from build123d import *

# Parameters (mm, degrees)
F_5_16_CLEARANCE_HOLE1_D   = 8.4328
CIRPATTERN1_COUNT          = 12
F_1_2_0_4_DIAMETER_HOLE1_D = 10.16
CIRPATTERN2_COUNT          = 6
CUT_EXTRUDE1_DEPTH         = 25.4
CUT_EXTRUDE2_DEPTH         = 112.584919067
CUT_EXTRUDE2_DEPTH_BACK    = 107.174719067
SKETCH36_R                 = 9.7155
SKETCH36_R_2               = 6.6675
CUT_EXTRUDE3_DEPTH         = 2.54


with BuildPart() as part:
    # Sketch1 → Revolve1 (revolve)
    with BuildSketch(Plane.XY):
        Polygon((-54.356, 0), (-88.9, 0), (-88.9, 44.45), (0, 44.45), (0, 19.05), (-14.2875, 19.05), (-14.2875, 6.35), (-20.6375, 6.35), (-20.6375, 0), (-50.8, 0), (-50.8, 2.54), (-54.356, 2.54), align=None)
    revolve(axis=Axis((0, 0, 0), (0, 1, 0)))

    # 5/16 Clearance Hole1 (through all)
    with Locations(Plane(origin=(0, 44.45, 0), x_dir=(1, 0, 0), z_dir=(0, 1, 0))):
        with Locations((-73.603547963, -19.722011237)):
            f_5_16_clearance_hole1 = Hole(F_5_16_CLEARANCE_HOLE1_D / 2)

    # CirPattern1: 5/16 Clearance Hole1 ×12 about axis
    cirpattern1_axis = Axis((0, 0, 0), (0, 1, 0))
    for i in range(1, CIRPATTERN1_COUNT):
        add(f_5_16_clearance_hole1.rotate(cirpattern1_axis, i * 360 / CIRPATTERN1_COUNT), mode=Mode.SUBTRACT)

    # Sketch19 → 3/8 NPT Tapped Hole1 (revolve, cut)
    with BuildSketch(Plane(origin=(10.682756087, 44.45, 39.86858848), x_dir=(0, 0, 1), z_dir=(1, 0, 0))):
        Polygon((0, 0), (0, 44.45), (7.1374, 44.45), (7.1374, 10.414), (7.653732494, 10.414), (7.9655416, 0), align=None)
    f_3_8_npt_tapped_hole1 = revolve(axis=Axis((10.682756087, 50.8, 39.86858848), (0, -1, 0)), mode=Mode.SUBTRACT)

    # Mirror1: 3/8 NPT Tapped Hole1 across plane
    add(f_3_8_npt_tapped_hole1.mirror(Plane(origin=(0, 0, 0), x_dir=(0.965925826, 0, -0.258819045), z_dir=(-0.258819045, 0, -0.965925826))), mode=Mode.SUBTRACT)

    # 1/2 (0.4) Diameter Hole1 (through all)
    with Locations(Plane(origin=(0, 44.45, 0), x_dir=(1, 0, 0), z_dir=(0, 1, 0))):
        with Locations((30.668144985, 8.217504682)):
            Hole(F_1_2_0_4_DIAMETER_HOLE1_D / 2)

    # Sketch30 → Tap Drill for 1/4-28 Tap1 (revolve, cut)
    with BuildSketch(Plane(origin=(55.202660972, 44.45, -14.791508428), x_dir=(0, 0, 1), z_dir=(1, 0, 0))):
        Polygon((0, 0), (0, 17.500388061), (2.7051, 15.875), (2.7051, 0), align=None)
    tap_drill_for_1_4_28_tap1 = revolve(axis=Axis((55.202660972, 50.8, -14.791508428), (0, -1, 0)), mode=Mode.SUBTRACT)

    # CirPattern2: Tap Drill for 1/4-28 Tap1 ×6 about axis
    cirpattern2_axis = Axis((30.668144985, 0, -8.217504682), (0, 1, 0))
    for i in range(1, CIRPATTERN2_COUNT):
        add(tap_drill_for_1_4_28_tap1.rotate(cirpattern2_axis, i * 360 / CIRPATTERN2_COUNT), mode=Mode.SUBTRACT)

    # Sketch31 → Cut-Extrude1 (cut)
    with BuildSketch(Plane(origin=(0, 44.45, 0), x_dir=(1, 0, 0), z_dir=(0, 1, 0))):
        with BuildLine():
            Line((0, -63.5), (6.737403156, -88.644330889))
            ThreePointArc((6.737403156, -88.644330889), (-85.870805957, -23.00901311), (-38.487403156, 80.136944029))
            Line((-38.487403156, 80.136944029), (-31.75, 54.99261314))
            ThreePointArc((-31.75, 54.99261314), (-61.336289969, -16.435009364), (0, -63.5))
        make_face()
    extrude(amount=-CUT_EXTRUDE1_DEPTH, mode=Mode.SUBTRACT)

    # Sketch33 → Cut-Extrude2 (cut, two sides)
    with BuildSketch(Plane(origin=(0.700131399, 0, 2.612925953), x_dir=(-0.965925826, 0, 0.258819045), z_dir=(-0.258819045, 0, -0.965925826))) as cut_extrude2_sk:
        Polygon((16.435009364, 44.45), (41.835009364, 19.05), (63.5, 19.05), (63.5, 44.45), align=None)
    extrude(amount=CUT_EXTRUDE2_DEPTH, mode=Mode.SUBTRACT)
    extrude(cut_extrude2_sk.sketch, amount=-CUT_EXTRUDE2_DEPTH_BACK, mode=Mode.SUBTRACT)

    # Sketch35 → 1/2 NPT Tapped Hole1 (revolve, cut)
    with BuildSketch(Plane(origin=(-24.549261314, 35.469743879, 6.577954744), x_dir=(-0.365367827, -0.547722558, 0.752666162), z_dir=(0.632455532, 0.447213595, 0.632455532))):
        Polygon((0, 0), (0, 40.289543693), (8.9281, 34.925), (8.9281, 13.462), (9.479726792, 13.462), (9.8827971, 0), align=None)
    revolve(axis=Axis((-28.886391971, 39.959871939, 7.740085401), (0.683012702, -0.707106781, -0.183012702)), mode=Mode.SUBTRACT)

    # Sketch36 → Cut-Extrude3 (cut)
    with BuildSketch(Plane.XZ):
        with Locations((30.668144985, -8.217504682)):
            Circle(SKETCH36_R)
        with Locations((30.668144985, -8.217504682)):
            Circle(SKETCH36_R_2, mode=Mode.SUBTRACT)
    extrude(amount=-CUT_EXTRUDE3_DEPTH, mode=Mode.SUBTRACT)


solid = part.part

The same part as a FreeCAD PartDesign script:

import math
import FreeCAD as App
import Part
import Sketcher

V = App.Vector
Q = App.Units.Quantity

doc = App.newDocument("Part")
body = doc.addObject("PartDesign::Body", "Body")

sketch1 = body.newObject("Sketcher::SketchObject", "Sketch")
sketch1.AttachmentSupport = (doc.getObject("XY_Plane"), [""])
sketch1.MapMode = "FlatFace"
sketch1.addGeometry(Part.LineSegment(V(-88.9, 0, 0), V(-54.4, 0, 0)), False)
sketch1.addGeometry(Part.LineSegment(V(-54.4, 0, 0), V(-54.4, 2.5, 0)), False)
sketch1.addGeometry(Part.LineSegment(V(-54.4, 2.5, 0), V(-50.8, 2.5, 0)), False)
sketch1.addGeometry(Part.LineSegment(V(-50.8, 2.5, 0), V(-50.8, 0, 0)), False)
sketch1.addGeometry(Part.LineSegment(V(-50.8, 0, 0), V(-20.6, 0, 0)), False)
sketch1.addGeometry(Part.LineSegment(V(-20.6, 0, 0), V(-20.6, 6.3, 0)), False)
sketch1.addGeometry(Part.LineSegment(V(-20.6, 6.3, 0), V(-14.3, 6.3, 0)), False)
sketch1.addGeometry(Part.LineSegment(V(-14.3, 6.3, 0), V(-14.3, 19.1, 0)), False)
sketch1.addGeometry(Part.LineSegment(V(-14.3, 19.1, 0), V(0, 19.1, 0)), False)
sketch1.addGeometry(Part.LineSegment(V(0, 19.1, 0), V(0, 44.5, 0)), False)
sketch1.addGeometry(Part.LineSegment(V(0, 44.5, 0), V(-88.9, 44.5, 0)), False)
sketch1.addGeometry(Part.LineSegment(V(-88.9, 44.5, 0), V(-88.9, 0, 0)), False)
sketch1.addConstraint(Sketcher.Constraint("Coincident", 0, 2, 1, 1))
sketch1.addConstraint(Sketcher.Constraint("Coincident", 1, 2, 2, 1))
sketch1.addConstraint(Sketcher.Constraint("Coincident", 2, 2, 3, 1))
sketch1.addConstraint(Sketcher.Constraint("Coincident", 3, 2, 4, 1))
sketch1.addConstraint(Sketcher.Constraint("Coincident", 4, 2, 5, 1))
sketch1.addConstraint(Sketcher.Constraint("Coincident", 5, 2, 6, 1))
sketch1.addConstraint(Sketcher.Constraint("Coincident", 6, 2, 7, 1))
sketch1.addConstraint(Sketcher.Constraint("Coincident", 7, 2, 8, 1))
sketch1.addConstraint(Sketcher.Constraint("Coincident", 8, 2, 9, 1))
sketch1.addConstraint(Sketcher.Constraint("Coincident", 9, 2, 10, 1))
sketch1.addConstraint(Sketcher.Constraint("Coincident", 10, 2, 11, 1))
sketch1.addConstraint(Sketcher.Constraint("Coincident", 11, 2, 0, 1))
sketch1.addConstraint(Sketcher.Constraint("Horizontal", 0))
sketch1.addConstraint(Sketcher.Constraint("Vertical", 1))
sketch1.addConstraint(Sketcher.Constraint("Horizontal", 2))
sketch1.addConstraint(Sketcher.Constraint("Vertical", 3))
sketch1.addConstraint(Sketcher.Constraint("Horizontal", 4))
sketch1.addConstraint(Sketcher.Constraint("Vertical", 5))
sketch1.addConstraint(Sketcher.Constraint("Horizontal", 6))
sketch1.addConstraint(Sketcher.Constraint("Vertical", 7))
sketch1.addConstraint(Sketcher.Constraint("Horizontal", 8))
sketch1.addConstraint(Sketcher.Constraint("Vertical", 9))
sketch1.addConstraint(Sketcher.Constraint("Horizontal", 10))
sketch1.addConstraint(Sketcher.Constraint("Vertical", 11))
sketch1.addConstraint(Sketcher.Constraint("PointOnObject", 0, 2, -1))
sketch1.addConstraint(Sketcher.Constraint("PointOnObject", 3, 2, -1))
sketch1.addConstraint(Sketcher.Constraint("PointOnObject", 8, 2, -2))
sketch1.addConstraint(Sketcher.Constraint("Equal", 6, 5))
sketch1.addConstraint(Sketcher.Constraint("DistanceY", 9, 1, 9, 2, Q("1 in")))
sketch1.addConstraint(Sketcher.Constraint("DistanceX", 10, 2, 10, 1, Q("3.5 in")))
sketch1.addConstraint(Sketcher.Constraint("DistanceY", 1, 1, 1, 2, Q("0.1 in")))
sketch1.addConstraint(Sketcher.Constraint("DistanceY", 7, 1, 7, 2, Q("0.5 in")))
sketch1.addConstraint(Sketcher.Constraint("DistanceX", 2, 2, -1, 1, Q("2 in")))
sketch1.addConstraint(Sketcher.Constraint("DistanceX", 0, 1, 0, 2, Q("1.36 in")))
sketch1.addConstraint(Sketcher.Constraint("DistanceX", 6, 1, 6, 2, Q("0.25 in")))
sketch1.addConstraint(Sketcher.Constraint("DistanceX", 4, 1, 4, 2, Q("1.1875 in")))
revolution = body.newObject("PartDesign::Revolution", "Revolution")
revolution.Profile = sketch1
revolution.ReferenceAxis = (sketch1, ["V_Axis"])
revolution.Angle = 360

sketch2 = body.newObject("Sketcher::SketchObject", "Sketch001")
sketch2.AttachmentSupport = (doc.getObject("XZ_Plane"), [""])
sketch2.MapMode = "FlatFace"
sketch2.AttachmentOffset = App.Placement(V(0, 0, -1.75 * 25.4), App.Rotation())
sketch2.addGeometry(Part.Circle(V(-73.6, 19.7, 0), V(0, 0, 1), 4.2), False)
sketch2.addConstraint(Sketcher.Constraint("Diameter", 0, Q("0.332 in")))
sketch2.addConstraint(Sketcher.Constraint("DistanceY", -1, 1, 0, 3, Q("19.722011 mm")))
sketch2.addConstraint(Sketcher.Constraint("DistanceX", 0, 3, -1, 1, Q("73.603548 mm")))
doc.recompute()
hole = body.newObject("PartDesign::Hole", "Hole")
hole.Profile = sketch2
hole.ThreadType = "None"
hole.Diameter = Q("0.332 in")
hole.DepthType = "ThroughAll"
hole.Reversed = True
doc.recompute()

polarpattern = body.newObject("PartDesign::PolarPattern", "PolarPattern")
polarpattern.Originals = [hole]
polarpattern.Axis = (doc.getObject("Y_Axis"), [""])
polarpattern.Angle = 360
polarpattern.Occurrences = 12
body.Tip = polarpattern

sketch3 = body.newObject("Sketcher::SketchObject", "Sketch002")
sketch3.AttachmentSupport = (doc.getObject("YZ_Plane"), [""])
sketch3.MapMode = "FlatFace"
sketch3.AttachmentOffset = App.Placement(V(0, 0, 10.682756), App.Rotation())
sketch3.addGeometry(Part.LineSegment(V(0, 39.9, 0), V(44.5, 39.9, 0)), False)
sketch3.addGeometry(Part.LineSegment(V(44.5, 39.9, 0), V(44.5, 47.8, 0)), False)
sketch3.addGeometry(Part.LineSegment(V(44.5, 47.8, 0), V(34, 47.5, 0)), False)
sketch3.addGeometry(Part.LineSegment(V(34, 47.5, 0), V(34, 47, 0)), False)
sketch3.addGeometry(Part.LineSegment(V(34, 47, 0), V(0, 47, 0)), False)
sketch3.addGeometry(Part.LineSegment(V(0, 47, 0), V(0, 39.9, 0)), False)
sketch3.addGeometry(Part.LineSegment(V(44.5, 39.9, 0), V(0, 39.9, 0)), True)
sketch3.addConstraint(Sketcher.Constraint("Coincident", 0, 2, 1, 1))
sketch3.addConstraint(Sketcher.Constraint("Coincident", 1, 2, 2, 1))
sketch3.addConstraint(Sketcher.Constraint("Coincident", 2, 2, 3, 1))
sketch3.addConstraint(Sketcher.Constraint("Coincident", 3, 2, 4, 1))
sketch3.addConstraint(Sketcher.Constraint("Coincident", 4, 2, 5, 1))
sketch3.addConstraint(Sketcher.Constraint("Coincident", 5, 2, 0, 1))
sketch3.addConstraint(Sketcher.Constraint("Horizontal", 0))
sketch3.addConstraint(Sketcher.Constraint("Vertical", 1))
sketch3.addConstraint(Sketcher.Constraint("Vertical", 3))
sketch3.addConstraint(Sketcher.Constraint("Horizontal", 4))
sketch3.addConstraint(Sketcher.Constraint("Vertical", 5))
sketch3.addConstraint(Sketcher.Constraint("Horizontal", 6))
sketch3.addConstraint(Sketcher.Constraint("Coincident", 6, 1, 0, 2))
sketch3.addConstraint(Sketcher.Constraint("PointOnObject", 4, 2, -2))
sketch3.addConstraint(Sketcher.Constraint("PointOnObject", 6, 2, -2))
sketch3.addConstraint(Sketcher.Constraint("DistanceX", 0, 1, 0, 2, Q("1.75 in")))
sketch3.addConstraint(Sketcher.Constraint("DistanceX", 4, 2, 4, 1, Q("1.34 in")))
sketch3.addConstraint(Sketcher.Constraint("DistanceY", 5, 2, 5, 1, Q("0.281 in")))
sketch3.addConstraint(Sketcher.Constraint("DistanceY", 1, 1, 1, 2, Q("7.965542 mm")))
sketch3.addConstraint(Sketcher.Constraint("DistanceY", 3, 2, 3, 1, Q("0.516332 mm")))
sketch3.addConstraint(Sketcher.Constraint("DistanceY", -1, 1, 0, 2, Q("39.868588 mm")))
groove = body.newObject("PartDesign::Groove", "Groove")
groove.Profile = sketch3
groove.ReferenceAxis = (sketch3, ["Axis0"])
groove.Angle = 360
doc.recompute()

datumplane = body.newObject("PartDesign::Plane", "DatumPlane")
datumplane.Placement = App.Placement(V(0, 0, 0), App.Rotation(V(0.965925826, 0, -0.258819045), V(0, -1, 0), V(-0.258819045, 0, -0.965925826), "ZXY"))
mirrored = body.newObject("PartDesign::Mirrored", "Mirrored")
mirrored.Originals = [groove]
mirrored.MirrorPlane = (datumplane, [""])
body.Tip = mirrored

sketch4 = body.newObject("Sketcher::SketchObject", "Sketch003")
sketch4.AttachmentSupport = (doc.getObject("XZ_Plane"), [""])
sketch4.MapMode = "FlatFace"
sketch4.AttachmentOffset = App.Placement(V(0, 0, -1.75 * 25.4), App.Rotation())
sketch4.addGeometry(Part.Circle(V(31, -8, 0), V(0, 0, 1), 5), False)
sketch4.addConstraint(Sketcher.Constraint("Diameter", 0, Q("0.4 in")))
sketch4.addConstraint(Sketcher.Constraint("DistanceX", -1, 1, 0, 3, Q("30.668145 mm")))
sketch4.addConstraint(Sketcher.Constraint("DistanceY", 0, 3, -1, 1, Q("8.217505 mm")))
doc.recompute()
hole2 = body.newObject("PartDesign::Hole", "Hole001")
hole2.Profile = sketch4
hole2.ThreadType = "None"
hole2.Diameter = Q("0.4 in")
hole2.DepthType = "ThroughAll"
hole2.Reversed = True

sketch5 = body.newObject("Sketcher::SketchObject", "Sketch004")
sketch5.AttachmentSupport = (doc.getObject("YZ_Plane"), [""])
sketch5.MapMode = "FlatFace"
sketch5.AttachmentOffset = App.Placement(V(0, 0, 55.202661), App.Rotation())
sketch5.addGeometry(Part.LineSegment(V(26.9, -14.8, 0), V(44.5, -14.8, 0)), False)
sketch5.addGeometry(Part.LineSegment(V(44.5, -14.8, 0), V(44.5, -12.1, 0)), False)
sketch5.addGeometry(Part.LineSegment(V(44.5, -12.1, 0), V(28.6, -12.1, 0)), False)
sketch5.addGeometry(Part.LineSegment(V(28.6, -12.1, 0), V(26.9, -14.8, 0)), False)
sketch5.addGeometry(Part.LineSegment(V(44.5, -14.8, 0), V(26.9, -14.8, 0)), True)
sketch5.addConstraint(Sketcher.Constraint("Coincident", 0, 2, 1, 1))
sketch5.addConstraint(Sketcher.Constraint("Coincident", 1, 2, 2, 1))
sketch5.addConstraint(Sketcher.Constraint("Coincident", 2, 2, 3, 1))
sketch5.addConstraint(Sketcher.Constraint("Coincident", 3, 2, 0, 1))
sketch5.addConstraint(Sketcher.Constraint("Horizontal", 0))
sketch5.addConstraint(Sketcher.Constraint("Vertical", 1))
sketch5.addConstraint(Sketcher.Constraint("Horizontal", 2))
sketch5.addConstraint(Sketcher.Constraint("Horizontal", 4))
sketch5.addConstraint(Sketcher.Constraint("Coincident", 4, 1, 0, 2))
sketch5.addConstraint(Sketcher.Constraint("Equal", 0, 4))
sketch5.addConstraint(Sketcher.Constraint("Angle", 3, Q("-121 deg")))
sketch5.addConstraint(Sketcher.Constraint("DistanceX", 2, 2, 2, 1, Q("0.625 in")))
sketch5.addConstraint(Sketcher.Constraint("DistanceX", -1, 1, 0, 2, Q("1.75 in")))
sketch5.addConstraint(Sketcher.Constraint("DistanceY", 1, 1, 1, 2, Q("0.1065 in")))
sketch5.addConstraint(Sketcher.Constraint("DistanceY", 0, 2, -1, 1, Q("14.791508 mm")))
groove2 = body.newObject("PartDesign::Groove", "Groove001")
groove2.Profile = sketch5
groove2.ReferenceAxis = (sketch5, ["Axis0"])
groove2.Angle = 360
doc.recompute()

datumline = body.newObject("PartDesign::Line", "DatumLine")
datumline.Placement = App.Placement(V(30.668145, 0, -8.217505), App.Rotation(V(0, 0, 1), V(0, 1, 0)))
polarpattern2 = body.newObject("PartDesign::PolarPattern", "PolarPattern001")
polarpattern2.Originals = [groove2]
polarpattern2.Axis = (datumline, [""])
polarpattern2.Angle = 360
polarpattern2.Occurrences = 6
body.Tip = polarpattern2

sketch6 = body.newObject("Sketcher::SketchObject", "Sketch005")
sketch6.AttachmentSupport = (doc.getObject("XZ_Plane"), [""])
sketch6.MapMode = "FlatFace"
sketch6.AttachmentOffset = App.Placement(V(0, 0, -1.75 * 25.4), App.Rotation())
sketch6.addGeometry(Part.LineSegment(V(7, 89, 0), V(0, 64, 0)), False)
sketch6.addGeometry(Part.ArcOfCircle(Part.Circle(V(0, 0, 0), V(0, 0, 1), 64), math.radians(90), math.radians(240)), False)
sketch6.addGeometry(Part.LineSegment(V(-32, -55, 0), V(-38, -80, 0)), False)
sketch6.addGeometry(Part.ArcOfCircle(Part.Circle(V(0, 0, 0), V(0, 0, 1), 89), math.radians(86), math.radians(244)), False)
sketch6.addConstraint(Sketcher.Constraint("Coincident", 0, 2, 1, 1))
sketch6.addConstraint(Sketcher.Constraint("Coincident", 1, 2, 2, 1))
sketch6.addConstraint(Sketcher.Constraint("Coincident", 2, 2, 3, 2))
sketch6.addConstraint(Sketcher.Constraint("Coincident", 3, 1, 0, 1))
sketch6.addConstraint(Sketcher.Constraint("Coincident", 1, 3, -1, 1))
sketch6.addConstraint(Sketcher.Constraint("Coincident", 3, 3, -1, 1))
sketch6.addConstraint(Sketcher.Constraint("PointOnObject", 0, 2, -2))
sketch6.addConstraint(Sketcher.Constraint("Parallel", 0, 2))
sketch6.addConstraint(Sketcher.Constraint("Equal", 0, 2))
sketch6.addConstraint(Sketcher.Constraint("Radius", 1, Q("2.5 in")))
sketch6.addConstraint(Sketcher.Constraint("Radius", 3, Q("3.5 in")))
sketch6.addConstraint(Sketcher.Constraint("Angle", 0, Q("-105 deg")))
pocket1 = body.newObject("PartDesign::Pocket", "Pocket")
pocket1.Profile = sketch6
pocket1.Length = Q("1 in")
pocket1.Reversed = True

sketch7 = body.newObject("Sketcher::SketchObject", "Sketch006")
sketch7.Placement = App.Placement(V(0.700131, 0, 2.612926), App.Rotation(V(-0.965925826, 0, 0.258819045), V(0, 0.999999999, 0), V(-0.258819045, 0, -0.965925826), "ZXY"))
sketch7.addGeometry(Part.LineSegment(V(16, 44, 0), V(42, 19, 0)), False)
sketch7.addGeometry(Part.LineSegment(V(42, 19, 0), V(63, 19, 0)), False)
sketch7.addGeometry(Part.LineSegment(V(63, 19, 0), V(63, 44, 0)), False)
sketch7.addGeometry(Part.LineSegment(V(63, 44, 0), V(16, 44, 0)), False)
sketch7.addConstraint(Sketcher.Constraint("Coincident", 0, 2, 1, 1))
sketch7.addConstraint(Sketcher.Constraint("Coincident", 1, 2, 2, 1))
sketch7.addConstraint(Sketcher.Constraint("Coincident", 2, 2, 3, 1))
sketch7.addConstraint(Sketcher.Constraint("Coincident", 3, 2, 0, 1))
sketch7.addConstraint(Sketcher.Constraint("Horizontal", 1))
sketch7.addConstraint(Sketcher.Constraint("Vertical", 2))
sketch7.addConstraint(Sketcher.Constraint("Horizontal", 3))
sketch7.addConstraint(Sketcher.Constraint("DistanceY", 2, 1, 2, 2, Q("1 in")))
sketch7.addConstraint(Sketcher.Constraint("Angle", 0, Q("-45 deg")))
sketch7.addConstraint(Sketcher.Constraint("DistanceX", -1, 1, 1, 2, Q("2.5 in")))
sketch7.addConstraint(Sketcher.Constraint("DistanceY", -1, 1, 0, 2, Q("0.75 in")))
sketch7.addConstraint(Sketcher.Constraint("DistanceX", 1, 1, 1, 2, Q("21.664991 mm")))
pocket2 = body.newObject("PartDesign::Pocket", "Pocket001")
pocket2.Profile = sketch7
pocket2.Type = "ThroughAll"
pocket2.Midplane = True

sketch8 = body.newObject("Sketcher::SketchObject", "Sketch007")
sketch8.Placement = App.Placement(V(-24.549261, 35.469744, 6.577955), App.Rotation(V(-0.365367827, -0.547722558, 0.752666161), V(0.683012702, -0.707106781, -0.183012702), V(0.632455532, 0.447213595, 0.632455532), "ZXY"))
sketch8.addGeometry(Part.LineSegment(V(0, 40.3, 0), V(0, 0, 0)), False)
sketch8.addGeometry(Part.LineSegment(V(0, 0, 0), V(9.9, 0, 0)), False)
sketch8.addGeometry(Part.LineSegment(V(9.9, 0, 0), V(9.5, 13.5, 0)), False)
sketch8.addGeometry(Part.LineSegment(V(9.5, 13.5, 0), V(8.9, 13.5, 0)), False)
sketch8.addGeometry(Part.LineSegment(V(8.9, 13.5, 0), V(8.9, 34.9, 0)), False)
sketch8.addGeometry(Part.LineSegment(V(8.9, 34.9, 0), V(0, 40.3, 0)), False)
sketch8.addConstraint(Sketcher.Constraint("Coincident", 0, 2, 1, 1))
sketch8.addConstraint(Sketcher.Constraint("Coincident", 1, 2, 2, 1))
sketch8.addConstraint(Sketcher.Constraint("Coincident", 2, 2, 3, 1))
sketch8.addConstraint(Sketcher.Constraint("Coincident", 3, 2, 4, 1))
sketch8.addConstraint(Sketcher.Constraint("Coincident", 4, 2, 5, 1))
sketch8.addConstraint(Sketcher.Constraint("Coincident", 5, 2, 0, 1))
sketch8.addConstraint(Sketcher.Constraint("Vertical", 0))
sketch8.addConstraint(Sketcher.Constraint("Horizontal", 1))
sketch8.addConstraint(Sketcher.Constraint("Horizontal", 3))
sketch8.addConstraint(Sketcher.Constraint("Vertical", 4))
sketch8.addConstraint(Sketcher.Constraint("Coincident", 0, 2, -1, 1))
sketch8.addConstraint(Sketcher.Constraint("Angle", 5, Q("149 deg")))
sketch8.addConstraint(Sketcher.Constraint("DistanceY", 4, 1, 4, 2, Q("0.845 in")))
sketch8.addConstraint(Sketcher.Constraint("DistanceY", -1, 1, 2, 2, Q("0.53 in")))
sketch8.addConstraint(Sketcher.Constraint("DistanceX", -1, 1, 3, 2, Q("0.3515 in")))
sketch8.addConstraint(Sketcher.Constraint("DistanceX", 1, 1, 1, 2, Q("9.882797 mm")))
sketch8.addConstraint(Sketcher.Constraint("DistanceX", 3, 2, 3, 1, Q("0.551627 mm")))
groove3 = body.newObject("PartDesign::Groove", "Groove002")
groove3.Profile = sketch8
groove3.ReferenceAxis = (sketch8, ["V_Axis"])
groove3.Angle = 360

sketch9 = body.newObject("Sketcher::SketchObject", "Sketch008")
sketch9.AttachmentSupport = (doc.getObject("XZ_Plane"), [""])
sketch9.MapMode = "FlatFace"
sketch9.addGeometry(Part.Circle(V(31, -8, 0), V(0, 0, 1), 10), False)
sketch9.addGeometry(Part.Circle(V(31, -8, 0), V(0, 0, 1), 7), False)
sketch9.addConstraint(Sketcher.Constraint("Coincident", 1, 3, 0, 3))
sketch9.addConstraint(Sketcher.Constraint("Diameter", 0, Q("0.765 in")))
sketch9.addConstraint(Sketcher.Constraint("Diameter", 1, Q("0.525 in")))
sketch9.addConstraint(Sketcher.Constraint("DistanceX", -1, 1, 0, 3, Q("30.668145 mm")))
sketch9.addConstraint(Sketcher.Constraint("DistanceY", 0, 3, -1, 1, Q("8.217505 mm")))
pocket3 = body.newObject("PartDesign::Pocket", "Pocket002")
pocket3.Profile = sketch9
pocket3.Length = Q("0.1 in")

doc.recompute()
